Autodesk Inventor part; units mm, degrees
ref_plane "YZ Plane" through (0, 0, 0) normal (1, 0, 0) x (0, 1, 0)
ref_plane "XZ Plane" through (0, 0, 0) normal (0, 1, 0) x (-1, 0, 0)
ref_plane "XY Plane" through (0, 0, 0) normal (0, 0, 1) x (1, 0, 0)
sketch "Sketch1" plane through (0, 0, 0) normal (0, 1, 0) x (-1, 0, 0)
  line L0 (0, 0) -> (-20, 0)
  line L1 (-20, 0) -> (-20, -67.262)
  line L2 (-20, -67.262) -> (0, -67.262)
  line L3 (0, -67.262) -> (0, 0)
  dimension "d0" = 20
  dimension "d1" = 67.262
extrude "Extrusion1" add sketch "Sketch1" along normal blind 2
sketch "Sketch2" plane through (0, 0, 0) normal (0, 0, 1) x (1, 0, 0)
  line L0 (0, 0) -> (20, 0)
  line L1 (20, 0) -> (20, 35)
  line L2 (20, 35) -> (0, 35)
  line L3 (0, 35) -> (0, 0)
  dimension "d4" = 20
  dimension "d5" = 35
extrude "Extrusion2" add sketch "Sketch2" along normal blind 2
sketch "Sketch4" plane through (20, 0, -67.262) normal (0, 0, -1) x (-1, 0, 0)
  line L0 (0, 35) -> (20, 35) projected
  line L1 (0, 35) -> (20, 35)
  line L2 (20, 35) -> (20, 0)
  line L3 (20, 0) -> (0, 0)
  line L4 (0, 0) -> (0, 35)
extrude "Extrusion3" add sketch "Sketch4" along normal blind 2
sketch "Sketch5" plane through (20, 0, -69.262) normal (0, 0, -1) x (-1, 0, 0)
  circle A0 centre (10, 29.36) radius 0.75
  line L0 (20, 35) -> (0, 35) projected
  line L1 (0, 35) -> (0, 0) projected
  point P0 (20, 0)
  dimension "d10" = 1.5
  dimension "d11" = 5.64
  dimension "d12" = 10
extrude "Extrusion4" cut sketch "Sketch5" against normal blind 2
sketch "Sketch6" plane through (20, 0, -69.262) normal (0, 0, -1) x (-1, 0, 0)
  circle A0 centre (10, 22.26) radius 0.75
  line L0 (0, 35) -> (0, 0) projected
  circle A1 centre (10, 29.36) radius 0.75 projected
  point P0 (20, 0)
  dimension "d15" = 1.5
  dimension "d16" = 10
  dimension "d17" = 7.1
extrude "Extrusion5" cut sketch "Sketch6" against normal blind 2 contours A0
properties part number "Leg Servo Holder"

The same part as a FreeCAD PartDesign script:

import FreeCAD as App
import Part
import Sketcher
from FreeCAD import Vector

doc = App.newDocument("Part")
body = doc.addObject("PartDesign::Body", "Body")

sketch1 = body.newObject("Sketcher::SketchObject", "Sketch")
sketch1.AttachmentSupport = (doc.getObject("XZ_Plane"), [""])
sketch1.MapMode = "FlatFace"
sketch1.addGeometry([
    Part.LineSegment(Vector(0, -67, 0), Vector(0, 0, 0)),
    Part.LineSegment(Vector(0, 0, 0), Vector(20, 0, 0)),
    Part.LineSegment(Vector(20, 0, 0), Vector(20, -67, 0)),
    Part.LineSegment(Vector(20, -67, 0), Vector(0, -67, 0)),
], False)
sketch1.addConstraint([
    Sketcher.Constraint("Coincident", 0, 2, 1, 1),
    Sketcher.Constraint("Coincident", 1, 2, 2, 1),
    Sketcher.Constraint("Coincident", 2, 2, 3, 1),
    Sketcher.Constraint("Coincident", 3, 2, 0, 1),
    Sketcher.Constraint("Vertical", 0),
    Sketcher.Constraint("Horizontal", 1),
    Sketcher.Constraint("Vertical", 2),
    Sketcher.Constraint("Horizontal", 3),
    Sketcher.Constraint("Coincident", 0, 2, -1, 1),
    Sketcher.Constraint("DistanceX", 1, 1, 1, 2, 20.0),
    Sketcher.Constraint("DistanceY", 0, 1, 0, 2, 67.262),
])
pad1 = body.newObject("PartDesign::Pad", "Pad")
pad1.Profile = sketch1
pad1.Length = 2
pad1.Reversed = True

sketch2 = body.newObject("Sketcher::SketchObject", "Sketch001")
sketch2.AttachmentSupport = (doc.getObject("XY_Plane"), [""])
sketch2.MapMode = "FlatFace"
sketch2.addGeometry([
    Part.LineSegment(Vector(0, 35, 0), Vector(0, 0, 0)),
    Part.LineSegment(Vector(0, 0, 0), Vector(20, 0, 0)),
    Part.LineSegment(Vector(20, 0, 0), Vector(20, 35, 0)),
    Part.LineSegment(Vector(20, 35, 0), Vector(0, 35, 0)),
], False)
sketch2.addConstraint([
    Sketcher.Constraint("Coincident", 0, 2, 1, 1),
    Sketcher.Constraint("Coincident", 1, 2, 2, 1),
    Sketcher.Constraint("Coincident", 2, 2, 3, 1),
    Sketcher.Constraint("Coincident", 3, 2, 0, 1),
    Sketcher.Constraint("Vertical", 0),
    Sketcher.Constraint("Horizontal", 1),
    Sketcher.Constraint("Vertical", 2),
    Sketcher.Constraint("Horizontal", 3),
    Sketcher.Constraint("Coincident", 0, 2, -1, 1),
    Sketcher.Constraint("DistanceX", 1, 1, 1, 2, 20.0),
    Sketcher.Constraint("DistanceY", 0, 2, 0, 1, 35.0),
])
pad2 = body.newObject("PartDesign::Pad", "Pad001")
pad2.Profile = sketch2
pad2.Length = 2

sketch3 = body.newObject("Sketcher::SketchObject", "Sketch002")
sketch3.AttachmentSupport = (doc.getObject("XY_Plane"), [""])
sketch3.MapMode = "FlatFace"
sketch3.AttachmentOffset = App.Placement(Vector(0, 0, -67.262), App.Rotation())
sketch3.addGeometry([
    Part.LineSegment(Vector(0, 35, 0), Vector(20, 35, 0)),
    Part.LineSegment(Vector(20, 35, 0), Vector(20, 0, 0)),
    Part.LineSegment(Vector(20, 0, 0), Vector(0, 0, 0)),
    Part.LineSegment(Vector(0, 0, 0), Vector(0, 35, 0)),
], False)
sketch3.addConstraint([
    Sketcher.Constraint("Coincident", 0, 2, 1, 1),
    Sketcher.Constraint("Coincident", 1, 2, 2, 1),
    Sketcher.Constraint("Coincident", 2, 2, 3, 1),
    Sketcher.Constraint("Coincident", 3, 2, 0, 1),
    Sketcher.Constraint("Horizontal", 0),
    Sketcher.Constraint("Vertical", 1),
    Sketcher.Constraint("Horizontal", 2),
    Sketcher.Constraint("Vertical", 3),
    Sketcher.Constraint("Coincident", 2, 2, -1, 1),
    Sketcher.Constraint("DistanceX", 0, 1, 0, 2, 20.0),
    Sketcher.Constraint("DistanceY", 1, 2, 1, 1, 35.0),
])
pad3 = body.newObject("PartDesign::Pad", "Pad002")
pad3.Profile = sketch3
pad3.Length = 2
pad3.Reversed = True

sketch4 = body.newObject("Sketcher::SketchObject", "Sketch003")
sketch4.AttachmentSupport = (doc.getObject("XY_Plane"), [""])
sketch4.MapMode = "FlatFace"
sketch4.AttachmentOffset = App.Placement(Vector(0, 0, -69.262), App.Rotation())
sketch4.addGeometry(Part.Circle(Vector(10, 29.4, 0), Vector(0, 0, 1), 0.8), False)
sketch4.addConstraint([
    Sketcher.Constraint("Diameter", 0, 1.5),
    Sketcher.Constraint("DistanceX", -1, 1, 0, 3, 10.0),
    Sketcher.Constraint("DistanceY", -1, 1, 0, 3, 29.36),
])
pocket1 = body.newObject("PartDesign::Pocket", "Pocket")
pocket1.Profile = sketch4
pocket1.Length = 2
pocket1.Reversed = True

sketch5 = body.newObject("Sketcher::SketchObject", "Sketch004")
sketch5.AttachmentSupport = (doc.getObject("XY_Plane"), [""])
sketch5.MapMode = "FlatFace"
sketch5.AttachmentOffset = App.Placement(Vector(0, 0, -69.262), App.Rotation())
sketch5.addGeometry(Part.Circle(Vector(10, 22.3, 0), Vector(0, 0, 1), 0.8), False)
sketch5.addConstraint([
    Sketcher.Constraint("Diameter", 0, 1.5),
    Sketcher.Constraint("DistanceX", -1, 1, 0, 3, 10.0),
    Sketcher.Constraint("DistanceY", -1, 1, 0, 3, 22.26),
])
pocket2 = body.newObject("PartDesign::Pocket", "Pocket001")
pocket2.Profile = sketch5
pocket2.Length = 2
pocket2.Reversed = True

doc.recompute()
